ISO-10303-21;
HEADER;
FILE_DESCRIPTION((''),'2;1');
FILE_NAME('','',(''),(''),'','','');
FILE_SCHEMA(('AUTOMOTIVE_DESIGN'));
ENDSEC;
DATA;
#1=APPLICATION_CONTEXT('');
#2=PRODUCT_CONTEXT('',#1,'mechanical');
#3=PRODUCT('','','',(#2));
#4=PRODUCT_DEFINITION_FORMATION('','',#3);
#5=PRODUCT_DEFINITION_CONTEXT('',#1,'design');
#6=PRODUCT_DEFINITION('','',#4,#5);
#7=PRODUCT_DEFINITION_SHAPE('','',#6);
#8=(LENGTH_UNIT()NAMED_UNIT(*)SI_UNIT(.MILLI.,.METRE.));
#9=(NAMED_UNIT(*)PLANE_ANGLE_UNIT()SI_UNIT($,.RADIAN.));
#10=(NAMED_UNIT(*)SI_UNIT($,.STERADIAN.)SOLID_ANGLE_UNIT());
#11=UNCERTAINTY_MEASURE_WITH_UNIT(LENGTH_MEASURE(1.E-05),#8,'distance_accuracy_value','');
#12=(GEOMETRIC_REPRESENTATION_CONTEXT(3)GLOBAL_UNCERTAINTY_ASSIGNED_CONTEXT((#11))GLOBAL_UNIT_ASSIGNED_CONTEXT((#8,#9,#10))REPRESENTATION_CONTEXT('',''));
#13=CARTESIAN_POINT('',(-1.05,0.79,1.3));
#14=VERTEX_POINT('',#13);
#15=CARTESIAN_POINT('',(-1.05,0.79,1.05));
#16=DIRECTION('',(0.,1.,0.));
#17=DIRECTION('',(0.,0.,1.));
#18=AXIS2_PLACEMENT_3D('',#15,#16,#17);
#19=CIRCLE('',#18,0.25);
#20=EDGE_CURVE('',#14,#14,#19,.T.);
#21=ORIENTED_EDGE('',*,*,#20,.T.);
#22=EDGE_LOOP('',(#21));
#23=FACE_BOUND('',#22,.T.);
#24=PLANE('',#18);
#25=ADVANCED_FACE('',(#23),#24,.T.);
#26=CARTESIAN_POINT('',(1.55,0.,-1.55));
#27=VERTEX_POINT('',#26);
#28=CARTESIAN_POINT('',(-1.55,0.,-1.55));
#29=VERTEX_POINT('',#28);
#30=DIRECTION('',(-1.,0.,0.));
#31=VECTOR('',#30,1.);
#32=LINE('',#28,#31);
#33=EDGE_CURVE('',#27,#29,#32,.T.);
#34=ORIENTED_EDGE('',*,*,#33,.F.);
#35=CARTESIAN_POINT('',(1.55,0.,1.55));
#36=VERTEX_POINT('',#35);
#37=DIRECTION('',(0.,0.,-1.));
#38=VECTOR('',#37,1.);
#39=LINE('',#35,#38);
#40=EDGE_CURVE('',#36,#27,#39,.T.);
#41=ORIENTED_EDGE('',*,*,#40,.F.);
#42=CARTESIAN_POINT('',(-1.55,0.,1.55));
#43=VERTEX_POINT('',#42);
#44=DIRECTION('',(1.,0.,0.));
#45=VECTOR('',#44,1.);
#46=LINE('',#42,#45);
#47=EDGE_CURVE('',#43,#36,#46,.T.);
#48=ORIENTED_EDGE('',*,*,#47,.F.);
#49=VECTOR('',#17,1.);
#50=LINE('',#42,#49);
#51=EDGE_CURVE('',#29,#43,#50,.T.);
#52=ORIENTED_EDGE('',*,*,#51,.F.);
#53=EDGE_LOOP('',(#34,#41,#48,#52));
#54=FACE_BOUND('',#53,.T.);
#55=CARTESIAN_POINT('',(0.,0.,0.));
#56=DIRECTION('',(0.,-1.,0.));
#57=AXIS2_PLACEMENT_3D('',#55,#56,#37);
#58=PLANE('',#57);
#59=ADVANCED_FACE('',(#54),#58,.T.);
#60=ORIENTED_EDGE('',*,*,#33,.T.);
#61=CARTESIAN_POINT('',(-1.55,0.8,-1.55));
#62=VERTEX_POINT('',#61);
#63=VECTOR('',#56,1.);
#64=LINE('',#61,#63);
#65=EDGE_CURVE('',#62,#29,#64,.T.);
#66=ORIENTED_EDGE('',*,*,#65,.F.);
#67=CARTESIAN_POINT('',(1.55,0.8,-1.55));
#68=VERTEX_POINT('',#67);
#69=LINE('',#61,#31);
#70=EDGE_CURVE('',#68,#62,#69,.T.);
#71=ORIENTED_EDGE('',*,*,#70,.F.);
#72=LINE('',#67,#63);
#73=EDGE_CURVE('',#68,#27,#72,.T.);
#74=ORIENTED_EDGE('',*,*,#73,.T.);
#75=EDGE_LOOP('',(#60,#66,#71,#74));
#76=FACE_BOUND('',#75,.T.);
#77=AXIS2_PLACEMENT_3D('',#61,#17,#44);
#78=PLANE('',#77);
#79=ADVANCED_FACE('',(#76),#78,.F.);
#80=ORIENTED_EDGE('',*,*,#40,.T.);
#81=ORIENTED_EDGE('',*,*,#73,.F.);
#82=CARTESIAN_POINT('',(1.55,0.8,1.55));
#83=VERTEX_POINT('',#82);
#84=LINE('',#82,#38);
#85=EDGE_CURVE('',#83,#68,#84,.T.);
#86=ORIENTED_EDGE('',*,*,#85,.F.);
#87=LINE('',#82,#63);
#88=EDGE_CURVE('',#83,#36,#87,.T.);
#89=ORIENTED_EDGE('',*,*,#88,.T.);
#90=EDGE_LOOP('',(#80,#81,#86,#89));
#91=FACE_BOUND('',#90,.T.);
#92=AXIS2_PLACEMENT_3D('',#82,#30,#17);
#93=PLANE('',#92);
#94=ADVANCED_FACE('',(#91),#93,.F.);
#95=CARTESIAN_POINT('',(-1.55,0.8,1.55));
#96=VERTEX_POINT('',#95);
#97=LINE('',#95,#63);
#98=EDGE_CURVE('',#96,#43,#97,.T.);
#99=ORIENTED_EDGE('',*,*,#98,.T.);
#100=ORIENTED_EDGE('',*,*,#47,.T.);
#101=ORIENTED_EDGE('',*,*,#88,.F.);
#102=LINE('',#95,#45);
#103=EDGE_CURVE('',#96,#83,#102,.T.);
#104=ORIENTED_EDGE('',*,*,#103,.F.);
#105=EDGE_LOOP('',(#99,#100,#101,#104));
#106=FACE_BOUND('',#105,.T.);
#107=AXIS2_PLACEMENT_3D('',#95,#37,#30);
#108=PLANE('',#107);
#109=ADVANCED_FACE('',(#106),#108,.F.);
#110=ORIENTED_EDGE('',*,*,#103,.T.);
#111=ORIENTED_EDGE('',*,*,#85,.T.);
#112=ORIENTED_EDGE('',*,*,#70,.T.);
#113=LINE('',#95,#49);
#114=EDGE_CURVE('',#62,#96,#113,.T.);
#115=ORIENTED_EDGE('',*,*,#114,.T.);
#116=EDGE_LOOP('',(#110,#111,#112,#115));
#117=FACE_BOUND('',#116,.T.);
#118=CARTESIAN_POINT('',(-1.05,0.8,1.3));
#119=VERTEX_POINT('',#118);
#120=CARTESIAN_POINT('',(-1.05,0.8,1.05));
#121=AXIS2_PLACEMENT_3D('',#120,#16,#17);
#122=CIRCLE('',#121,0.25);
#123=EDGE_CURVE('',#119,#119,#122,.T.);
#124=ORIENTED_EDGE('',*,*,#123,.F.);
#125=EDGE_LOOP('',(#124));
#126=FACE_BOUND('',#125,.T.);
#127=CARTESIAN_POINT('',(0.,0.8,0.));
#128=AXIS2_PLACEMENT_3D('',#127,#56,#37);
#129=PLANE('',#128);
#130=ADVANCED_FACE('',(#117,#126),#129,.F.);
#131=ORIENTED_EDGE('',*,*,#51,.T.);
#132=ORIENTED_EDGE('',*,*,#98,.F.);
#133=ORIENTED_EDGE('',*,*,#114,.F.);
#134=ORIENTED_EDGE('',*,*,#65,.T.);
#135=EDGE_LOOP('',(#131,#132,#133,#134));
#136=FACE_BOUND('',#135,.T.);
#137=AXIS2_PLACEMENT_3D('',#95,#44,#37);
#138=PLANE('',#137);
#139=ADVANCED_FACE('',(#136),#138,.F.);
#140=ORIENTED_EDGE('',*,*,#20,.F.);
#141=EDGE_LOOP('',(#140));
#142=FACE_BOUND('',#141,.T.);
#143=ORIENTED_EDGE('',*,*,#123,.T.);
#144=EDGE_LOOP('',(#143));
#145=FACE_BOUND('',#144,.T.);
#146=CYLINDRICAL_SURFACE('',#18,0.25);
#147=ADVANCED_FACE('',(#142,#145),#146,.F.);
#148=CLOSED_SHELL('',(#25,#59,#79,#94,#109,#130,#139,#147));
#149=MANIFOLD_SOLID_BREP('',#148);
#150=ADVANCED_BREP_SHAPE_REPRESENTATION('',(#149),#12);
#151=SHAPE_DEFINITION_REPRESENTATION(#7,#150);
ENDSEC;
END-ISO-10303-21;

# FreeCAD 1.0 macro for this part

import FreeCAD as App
import Part
import Sketcher

V = App.Vector
Q = App.Units.Quantity


def add_polygon(sketch, points):
    """Adds a closed chain of lines whose ends are joined by coincident constraints."""
    first, n = sketch.GeometryCount, len(points)
    for a, b in zip(points, points[1:] + points[:1]):
        sketch.addGeometry(Part.LineSegment(App.Vector(*a, 0), App.Vector(*b, 0)), False)
    for i in range(n):
        sketch.addConstraint(Sketcher.Constraint("Coincident", first + i, 2, first + (i + 1) % n, 1))

doc = App.newDocument("Part")
body = doc.addObject("PartDesign::Body", "Body")

# Sketch on XZ plane
sketch1 = body.newObject("Sketcher::SketchObject", "Sketch")
sketch1.AttachmentSupport = (doc.getObject("XZ_Plane"), [""])
sketch1.MapMode = "FlatFace"
add_polygon(sketch1, [(-1.55, -1.55), (-1.55, 1.55), (1.55, 1.55), (1.55, -1.55)])  # lines 0-3
sketch1.addConstraint(Sketcher.Constraint("Vertical", 0))
sketch1.addConstraint(Sketcher.Constraint("Horizontal", 1))
sketch1.addConstraint(Sketcher.Constraint("Vertical", 2))
sketch1.addConstraint(Sketcher.Constraint("Horizontal", 3))
sketch1.addConstraint(Sketcher.Constraint("Symmetric", 0, 2, 2, 2, -1, 1))
sketch1.addConstraint(Sketcher.Constraint("Equal", 3, 0))
sketch1.addConstraint(Sketcher.Constraint("DistanceX", 1, 1, 1, 2, Q("3.1 mm")))
pad1 = body.newObject("PartDesign::Pad", "Pad")
pad1.Profile = sketch1
pad1.Length = 0.8
pad1.Reversed = True

# Sketch on XZ plane
sketch2 = body.newObject("Sketcher::SketchObject", "Sketch001")
sketch2.AttachmentSupport = (doc.getObject("XZ_Plane"), [""])
sketch2.MapMode = "FlatFace"
sketch2.AttachmentOffset = App.Placement(V(0, 0, -0.8), App.Rotation())
sketch2.addGeometry(Part.Circle(V(-1.05, 1.05, 0), V(0, 0, 1), 0.25), False)
sketch2.addConstraint(Sketcher.Constraint("Diameter", 0, Q("0.5 mm")))
sketch2.addConstraint(Sketcher.Constraint("DistanceX", 0, 3, -1, 1, Q("1.05 mm")))
sketch2.addConstraint(Sketcher.Constraint("DistanceY", -1, 1, 0, 3, Q("1.05 mm")))
pocket1 = body.newObject("PartDesign::Pocket", "Pocket")
pocket1.Profile = sketch2
pocket1.Length = 0.01
pocket1.Reversed = True

doc.recompute()
